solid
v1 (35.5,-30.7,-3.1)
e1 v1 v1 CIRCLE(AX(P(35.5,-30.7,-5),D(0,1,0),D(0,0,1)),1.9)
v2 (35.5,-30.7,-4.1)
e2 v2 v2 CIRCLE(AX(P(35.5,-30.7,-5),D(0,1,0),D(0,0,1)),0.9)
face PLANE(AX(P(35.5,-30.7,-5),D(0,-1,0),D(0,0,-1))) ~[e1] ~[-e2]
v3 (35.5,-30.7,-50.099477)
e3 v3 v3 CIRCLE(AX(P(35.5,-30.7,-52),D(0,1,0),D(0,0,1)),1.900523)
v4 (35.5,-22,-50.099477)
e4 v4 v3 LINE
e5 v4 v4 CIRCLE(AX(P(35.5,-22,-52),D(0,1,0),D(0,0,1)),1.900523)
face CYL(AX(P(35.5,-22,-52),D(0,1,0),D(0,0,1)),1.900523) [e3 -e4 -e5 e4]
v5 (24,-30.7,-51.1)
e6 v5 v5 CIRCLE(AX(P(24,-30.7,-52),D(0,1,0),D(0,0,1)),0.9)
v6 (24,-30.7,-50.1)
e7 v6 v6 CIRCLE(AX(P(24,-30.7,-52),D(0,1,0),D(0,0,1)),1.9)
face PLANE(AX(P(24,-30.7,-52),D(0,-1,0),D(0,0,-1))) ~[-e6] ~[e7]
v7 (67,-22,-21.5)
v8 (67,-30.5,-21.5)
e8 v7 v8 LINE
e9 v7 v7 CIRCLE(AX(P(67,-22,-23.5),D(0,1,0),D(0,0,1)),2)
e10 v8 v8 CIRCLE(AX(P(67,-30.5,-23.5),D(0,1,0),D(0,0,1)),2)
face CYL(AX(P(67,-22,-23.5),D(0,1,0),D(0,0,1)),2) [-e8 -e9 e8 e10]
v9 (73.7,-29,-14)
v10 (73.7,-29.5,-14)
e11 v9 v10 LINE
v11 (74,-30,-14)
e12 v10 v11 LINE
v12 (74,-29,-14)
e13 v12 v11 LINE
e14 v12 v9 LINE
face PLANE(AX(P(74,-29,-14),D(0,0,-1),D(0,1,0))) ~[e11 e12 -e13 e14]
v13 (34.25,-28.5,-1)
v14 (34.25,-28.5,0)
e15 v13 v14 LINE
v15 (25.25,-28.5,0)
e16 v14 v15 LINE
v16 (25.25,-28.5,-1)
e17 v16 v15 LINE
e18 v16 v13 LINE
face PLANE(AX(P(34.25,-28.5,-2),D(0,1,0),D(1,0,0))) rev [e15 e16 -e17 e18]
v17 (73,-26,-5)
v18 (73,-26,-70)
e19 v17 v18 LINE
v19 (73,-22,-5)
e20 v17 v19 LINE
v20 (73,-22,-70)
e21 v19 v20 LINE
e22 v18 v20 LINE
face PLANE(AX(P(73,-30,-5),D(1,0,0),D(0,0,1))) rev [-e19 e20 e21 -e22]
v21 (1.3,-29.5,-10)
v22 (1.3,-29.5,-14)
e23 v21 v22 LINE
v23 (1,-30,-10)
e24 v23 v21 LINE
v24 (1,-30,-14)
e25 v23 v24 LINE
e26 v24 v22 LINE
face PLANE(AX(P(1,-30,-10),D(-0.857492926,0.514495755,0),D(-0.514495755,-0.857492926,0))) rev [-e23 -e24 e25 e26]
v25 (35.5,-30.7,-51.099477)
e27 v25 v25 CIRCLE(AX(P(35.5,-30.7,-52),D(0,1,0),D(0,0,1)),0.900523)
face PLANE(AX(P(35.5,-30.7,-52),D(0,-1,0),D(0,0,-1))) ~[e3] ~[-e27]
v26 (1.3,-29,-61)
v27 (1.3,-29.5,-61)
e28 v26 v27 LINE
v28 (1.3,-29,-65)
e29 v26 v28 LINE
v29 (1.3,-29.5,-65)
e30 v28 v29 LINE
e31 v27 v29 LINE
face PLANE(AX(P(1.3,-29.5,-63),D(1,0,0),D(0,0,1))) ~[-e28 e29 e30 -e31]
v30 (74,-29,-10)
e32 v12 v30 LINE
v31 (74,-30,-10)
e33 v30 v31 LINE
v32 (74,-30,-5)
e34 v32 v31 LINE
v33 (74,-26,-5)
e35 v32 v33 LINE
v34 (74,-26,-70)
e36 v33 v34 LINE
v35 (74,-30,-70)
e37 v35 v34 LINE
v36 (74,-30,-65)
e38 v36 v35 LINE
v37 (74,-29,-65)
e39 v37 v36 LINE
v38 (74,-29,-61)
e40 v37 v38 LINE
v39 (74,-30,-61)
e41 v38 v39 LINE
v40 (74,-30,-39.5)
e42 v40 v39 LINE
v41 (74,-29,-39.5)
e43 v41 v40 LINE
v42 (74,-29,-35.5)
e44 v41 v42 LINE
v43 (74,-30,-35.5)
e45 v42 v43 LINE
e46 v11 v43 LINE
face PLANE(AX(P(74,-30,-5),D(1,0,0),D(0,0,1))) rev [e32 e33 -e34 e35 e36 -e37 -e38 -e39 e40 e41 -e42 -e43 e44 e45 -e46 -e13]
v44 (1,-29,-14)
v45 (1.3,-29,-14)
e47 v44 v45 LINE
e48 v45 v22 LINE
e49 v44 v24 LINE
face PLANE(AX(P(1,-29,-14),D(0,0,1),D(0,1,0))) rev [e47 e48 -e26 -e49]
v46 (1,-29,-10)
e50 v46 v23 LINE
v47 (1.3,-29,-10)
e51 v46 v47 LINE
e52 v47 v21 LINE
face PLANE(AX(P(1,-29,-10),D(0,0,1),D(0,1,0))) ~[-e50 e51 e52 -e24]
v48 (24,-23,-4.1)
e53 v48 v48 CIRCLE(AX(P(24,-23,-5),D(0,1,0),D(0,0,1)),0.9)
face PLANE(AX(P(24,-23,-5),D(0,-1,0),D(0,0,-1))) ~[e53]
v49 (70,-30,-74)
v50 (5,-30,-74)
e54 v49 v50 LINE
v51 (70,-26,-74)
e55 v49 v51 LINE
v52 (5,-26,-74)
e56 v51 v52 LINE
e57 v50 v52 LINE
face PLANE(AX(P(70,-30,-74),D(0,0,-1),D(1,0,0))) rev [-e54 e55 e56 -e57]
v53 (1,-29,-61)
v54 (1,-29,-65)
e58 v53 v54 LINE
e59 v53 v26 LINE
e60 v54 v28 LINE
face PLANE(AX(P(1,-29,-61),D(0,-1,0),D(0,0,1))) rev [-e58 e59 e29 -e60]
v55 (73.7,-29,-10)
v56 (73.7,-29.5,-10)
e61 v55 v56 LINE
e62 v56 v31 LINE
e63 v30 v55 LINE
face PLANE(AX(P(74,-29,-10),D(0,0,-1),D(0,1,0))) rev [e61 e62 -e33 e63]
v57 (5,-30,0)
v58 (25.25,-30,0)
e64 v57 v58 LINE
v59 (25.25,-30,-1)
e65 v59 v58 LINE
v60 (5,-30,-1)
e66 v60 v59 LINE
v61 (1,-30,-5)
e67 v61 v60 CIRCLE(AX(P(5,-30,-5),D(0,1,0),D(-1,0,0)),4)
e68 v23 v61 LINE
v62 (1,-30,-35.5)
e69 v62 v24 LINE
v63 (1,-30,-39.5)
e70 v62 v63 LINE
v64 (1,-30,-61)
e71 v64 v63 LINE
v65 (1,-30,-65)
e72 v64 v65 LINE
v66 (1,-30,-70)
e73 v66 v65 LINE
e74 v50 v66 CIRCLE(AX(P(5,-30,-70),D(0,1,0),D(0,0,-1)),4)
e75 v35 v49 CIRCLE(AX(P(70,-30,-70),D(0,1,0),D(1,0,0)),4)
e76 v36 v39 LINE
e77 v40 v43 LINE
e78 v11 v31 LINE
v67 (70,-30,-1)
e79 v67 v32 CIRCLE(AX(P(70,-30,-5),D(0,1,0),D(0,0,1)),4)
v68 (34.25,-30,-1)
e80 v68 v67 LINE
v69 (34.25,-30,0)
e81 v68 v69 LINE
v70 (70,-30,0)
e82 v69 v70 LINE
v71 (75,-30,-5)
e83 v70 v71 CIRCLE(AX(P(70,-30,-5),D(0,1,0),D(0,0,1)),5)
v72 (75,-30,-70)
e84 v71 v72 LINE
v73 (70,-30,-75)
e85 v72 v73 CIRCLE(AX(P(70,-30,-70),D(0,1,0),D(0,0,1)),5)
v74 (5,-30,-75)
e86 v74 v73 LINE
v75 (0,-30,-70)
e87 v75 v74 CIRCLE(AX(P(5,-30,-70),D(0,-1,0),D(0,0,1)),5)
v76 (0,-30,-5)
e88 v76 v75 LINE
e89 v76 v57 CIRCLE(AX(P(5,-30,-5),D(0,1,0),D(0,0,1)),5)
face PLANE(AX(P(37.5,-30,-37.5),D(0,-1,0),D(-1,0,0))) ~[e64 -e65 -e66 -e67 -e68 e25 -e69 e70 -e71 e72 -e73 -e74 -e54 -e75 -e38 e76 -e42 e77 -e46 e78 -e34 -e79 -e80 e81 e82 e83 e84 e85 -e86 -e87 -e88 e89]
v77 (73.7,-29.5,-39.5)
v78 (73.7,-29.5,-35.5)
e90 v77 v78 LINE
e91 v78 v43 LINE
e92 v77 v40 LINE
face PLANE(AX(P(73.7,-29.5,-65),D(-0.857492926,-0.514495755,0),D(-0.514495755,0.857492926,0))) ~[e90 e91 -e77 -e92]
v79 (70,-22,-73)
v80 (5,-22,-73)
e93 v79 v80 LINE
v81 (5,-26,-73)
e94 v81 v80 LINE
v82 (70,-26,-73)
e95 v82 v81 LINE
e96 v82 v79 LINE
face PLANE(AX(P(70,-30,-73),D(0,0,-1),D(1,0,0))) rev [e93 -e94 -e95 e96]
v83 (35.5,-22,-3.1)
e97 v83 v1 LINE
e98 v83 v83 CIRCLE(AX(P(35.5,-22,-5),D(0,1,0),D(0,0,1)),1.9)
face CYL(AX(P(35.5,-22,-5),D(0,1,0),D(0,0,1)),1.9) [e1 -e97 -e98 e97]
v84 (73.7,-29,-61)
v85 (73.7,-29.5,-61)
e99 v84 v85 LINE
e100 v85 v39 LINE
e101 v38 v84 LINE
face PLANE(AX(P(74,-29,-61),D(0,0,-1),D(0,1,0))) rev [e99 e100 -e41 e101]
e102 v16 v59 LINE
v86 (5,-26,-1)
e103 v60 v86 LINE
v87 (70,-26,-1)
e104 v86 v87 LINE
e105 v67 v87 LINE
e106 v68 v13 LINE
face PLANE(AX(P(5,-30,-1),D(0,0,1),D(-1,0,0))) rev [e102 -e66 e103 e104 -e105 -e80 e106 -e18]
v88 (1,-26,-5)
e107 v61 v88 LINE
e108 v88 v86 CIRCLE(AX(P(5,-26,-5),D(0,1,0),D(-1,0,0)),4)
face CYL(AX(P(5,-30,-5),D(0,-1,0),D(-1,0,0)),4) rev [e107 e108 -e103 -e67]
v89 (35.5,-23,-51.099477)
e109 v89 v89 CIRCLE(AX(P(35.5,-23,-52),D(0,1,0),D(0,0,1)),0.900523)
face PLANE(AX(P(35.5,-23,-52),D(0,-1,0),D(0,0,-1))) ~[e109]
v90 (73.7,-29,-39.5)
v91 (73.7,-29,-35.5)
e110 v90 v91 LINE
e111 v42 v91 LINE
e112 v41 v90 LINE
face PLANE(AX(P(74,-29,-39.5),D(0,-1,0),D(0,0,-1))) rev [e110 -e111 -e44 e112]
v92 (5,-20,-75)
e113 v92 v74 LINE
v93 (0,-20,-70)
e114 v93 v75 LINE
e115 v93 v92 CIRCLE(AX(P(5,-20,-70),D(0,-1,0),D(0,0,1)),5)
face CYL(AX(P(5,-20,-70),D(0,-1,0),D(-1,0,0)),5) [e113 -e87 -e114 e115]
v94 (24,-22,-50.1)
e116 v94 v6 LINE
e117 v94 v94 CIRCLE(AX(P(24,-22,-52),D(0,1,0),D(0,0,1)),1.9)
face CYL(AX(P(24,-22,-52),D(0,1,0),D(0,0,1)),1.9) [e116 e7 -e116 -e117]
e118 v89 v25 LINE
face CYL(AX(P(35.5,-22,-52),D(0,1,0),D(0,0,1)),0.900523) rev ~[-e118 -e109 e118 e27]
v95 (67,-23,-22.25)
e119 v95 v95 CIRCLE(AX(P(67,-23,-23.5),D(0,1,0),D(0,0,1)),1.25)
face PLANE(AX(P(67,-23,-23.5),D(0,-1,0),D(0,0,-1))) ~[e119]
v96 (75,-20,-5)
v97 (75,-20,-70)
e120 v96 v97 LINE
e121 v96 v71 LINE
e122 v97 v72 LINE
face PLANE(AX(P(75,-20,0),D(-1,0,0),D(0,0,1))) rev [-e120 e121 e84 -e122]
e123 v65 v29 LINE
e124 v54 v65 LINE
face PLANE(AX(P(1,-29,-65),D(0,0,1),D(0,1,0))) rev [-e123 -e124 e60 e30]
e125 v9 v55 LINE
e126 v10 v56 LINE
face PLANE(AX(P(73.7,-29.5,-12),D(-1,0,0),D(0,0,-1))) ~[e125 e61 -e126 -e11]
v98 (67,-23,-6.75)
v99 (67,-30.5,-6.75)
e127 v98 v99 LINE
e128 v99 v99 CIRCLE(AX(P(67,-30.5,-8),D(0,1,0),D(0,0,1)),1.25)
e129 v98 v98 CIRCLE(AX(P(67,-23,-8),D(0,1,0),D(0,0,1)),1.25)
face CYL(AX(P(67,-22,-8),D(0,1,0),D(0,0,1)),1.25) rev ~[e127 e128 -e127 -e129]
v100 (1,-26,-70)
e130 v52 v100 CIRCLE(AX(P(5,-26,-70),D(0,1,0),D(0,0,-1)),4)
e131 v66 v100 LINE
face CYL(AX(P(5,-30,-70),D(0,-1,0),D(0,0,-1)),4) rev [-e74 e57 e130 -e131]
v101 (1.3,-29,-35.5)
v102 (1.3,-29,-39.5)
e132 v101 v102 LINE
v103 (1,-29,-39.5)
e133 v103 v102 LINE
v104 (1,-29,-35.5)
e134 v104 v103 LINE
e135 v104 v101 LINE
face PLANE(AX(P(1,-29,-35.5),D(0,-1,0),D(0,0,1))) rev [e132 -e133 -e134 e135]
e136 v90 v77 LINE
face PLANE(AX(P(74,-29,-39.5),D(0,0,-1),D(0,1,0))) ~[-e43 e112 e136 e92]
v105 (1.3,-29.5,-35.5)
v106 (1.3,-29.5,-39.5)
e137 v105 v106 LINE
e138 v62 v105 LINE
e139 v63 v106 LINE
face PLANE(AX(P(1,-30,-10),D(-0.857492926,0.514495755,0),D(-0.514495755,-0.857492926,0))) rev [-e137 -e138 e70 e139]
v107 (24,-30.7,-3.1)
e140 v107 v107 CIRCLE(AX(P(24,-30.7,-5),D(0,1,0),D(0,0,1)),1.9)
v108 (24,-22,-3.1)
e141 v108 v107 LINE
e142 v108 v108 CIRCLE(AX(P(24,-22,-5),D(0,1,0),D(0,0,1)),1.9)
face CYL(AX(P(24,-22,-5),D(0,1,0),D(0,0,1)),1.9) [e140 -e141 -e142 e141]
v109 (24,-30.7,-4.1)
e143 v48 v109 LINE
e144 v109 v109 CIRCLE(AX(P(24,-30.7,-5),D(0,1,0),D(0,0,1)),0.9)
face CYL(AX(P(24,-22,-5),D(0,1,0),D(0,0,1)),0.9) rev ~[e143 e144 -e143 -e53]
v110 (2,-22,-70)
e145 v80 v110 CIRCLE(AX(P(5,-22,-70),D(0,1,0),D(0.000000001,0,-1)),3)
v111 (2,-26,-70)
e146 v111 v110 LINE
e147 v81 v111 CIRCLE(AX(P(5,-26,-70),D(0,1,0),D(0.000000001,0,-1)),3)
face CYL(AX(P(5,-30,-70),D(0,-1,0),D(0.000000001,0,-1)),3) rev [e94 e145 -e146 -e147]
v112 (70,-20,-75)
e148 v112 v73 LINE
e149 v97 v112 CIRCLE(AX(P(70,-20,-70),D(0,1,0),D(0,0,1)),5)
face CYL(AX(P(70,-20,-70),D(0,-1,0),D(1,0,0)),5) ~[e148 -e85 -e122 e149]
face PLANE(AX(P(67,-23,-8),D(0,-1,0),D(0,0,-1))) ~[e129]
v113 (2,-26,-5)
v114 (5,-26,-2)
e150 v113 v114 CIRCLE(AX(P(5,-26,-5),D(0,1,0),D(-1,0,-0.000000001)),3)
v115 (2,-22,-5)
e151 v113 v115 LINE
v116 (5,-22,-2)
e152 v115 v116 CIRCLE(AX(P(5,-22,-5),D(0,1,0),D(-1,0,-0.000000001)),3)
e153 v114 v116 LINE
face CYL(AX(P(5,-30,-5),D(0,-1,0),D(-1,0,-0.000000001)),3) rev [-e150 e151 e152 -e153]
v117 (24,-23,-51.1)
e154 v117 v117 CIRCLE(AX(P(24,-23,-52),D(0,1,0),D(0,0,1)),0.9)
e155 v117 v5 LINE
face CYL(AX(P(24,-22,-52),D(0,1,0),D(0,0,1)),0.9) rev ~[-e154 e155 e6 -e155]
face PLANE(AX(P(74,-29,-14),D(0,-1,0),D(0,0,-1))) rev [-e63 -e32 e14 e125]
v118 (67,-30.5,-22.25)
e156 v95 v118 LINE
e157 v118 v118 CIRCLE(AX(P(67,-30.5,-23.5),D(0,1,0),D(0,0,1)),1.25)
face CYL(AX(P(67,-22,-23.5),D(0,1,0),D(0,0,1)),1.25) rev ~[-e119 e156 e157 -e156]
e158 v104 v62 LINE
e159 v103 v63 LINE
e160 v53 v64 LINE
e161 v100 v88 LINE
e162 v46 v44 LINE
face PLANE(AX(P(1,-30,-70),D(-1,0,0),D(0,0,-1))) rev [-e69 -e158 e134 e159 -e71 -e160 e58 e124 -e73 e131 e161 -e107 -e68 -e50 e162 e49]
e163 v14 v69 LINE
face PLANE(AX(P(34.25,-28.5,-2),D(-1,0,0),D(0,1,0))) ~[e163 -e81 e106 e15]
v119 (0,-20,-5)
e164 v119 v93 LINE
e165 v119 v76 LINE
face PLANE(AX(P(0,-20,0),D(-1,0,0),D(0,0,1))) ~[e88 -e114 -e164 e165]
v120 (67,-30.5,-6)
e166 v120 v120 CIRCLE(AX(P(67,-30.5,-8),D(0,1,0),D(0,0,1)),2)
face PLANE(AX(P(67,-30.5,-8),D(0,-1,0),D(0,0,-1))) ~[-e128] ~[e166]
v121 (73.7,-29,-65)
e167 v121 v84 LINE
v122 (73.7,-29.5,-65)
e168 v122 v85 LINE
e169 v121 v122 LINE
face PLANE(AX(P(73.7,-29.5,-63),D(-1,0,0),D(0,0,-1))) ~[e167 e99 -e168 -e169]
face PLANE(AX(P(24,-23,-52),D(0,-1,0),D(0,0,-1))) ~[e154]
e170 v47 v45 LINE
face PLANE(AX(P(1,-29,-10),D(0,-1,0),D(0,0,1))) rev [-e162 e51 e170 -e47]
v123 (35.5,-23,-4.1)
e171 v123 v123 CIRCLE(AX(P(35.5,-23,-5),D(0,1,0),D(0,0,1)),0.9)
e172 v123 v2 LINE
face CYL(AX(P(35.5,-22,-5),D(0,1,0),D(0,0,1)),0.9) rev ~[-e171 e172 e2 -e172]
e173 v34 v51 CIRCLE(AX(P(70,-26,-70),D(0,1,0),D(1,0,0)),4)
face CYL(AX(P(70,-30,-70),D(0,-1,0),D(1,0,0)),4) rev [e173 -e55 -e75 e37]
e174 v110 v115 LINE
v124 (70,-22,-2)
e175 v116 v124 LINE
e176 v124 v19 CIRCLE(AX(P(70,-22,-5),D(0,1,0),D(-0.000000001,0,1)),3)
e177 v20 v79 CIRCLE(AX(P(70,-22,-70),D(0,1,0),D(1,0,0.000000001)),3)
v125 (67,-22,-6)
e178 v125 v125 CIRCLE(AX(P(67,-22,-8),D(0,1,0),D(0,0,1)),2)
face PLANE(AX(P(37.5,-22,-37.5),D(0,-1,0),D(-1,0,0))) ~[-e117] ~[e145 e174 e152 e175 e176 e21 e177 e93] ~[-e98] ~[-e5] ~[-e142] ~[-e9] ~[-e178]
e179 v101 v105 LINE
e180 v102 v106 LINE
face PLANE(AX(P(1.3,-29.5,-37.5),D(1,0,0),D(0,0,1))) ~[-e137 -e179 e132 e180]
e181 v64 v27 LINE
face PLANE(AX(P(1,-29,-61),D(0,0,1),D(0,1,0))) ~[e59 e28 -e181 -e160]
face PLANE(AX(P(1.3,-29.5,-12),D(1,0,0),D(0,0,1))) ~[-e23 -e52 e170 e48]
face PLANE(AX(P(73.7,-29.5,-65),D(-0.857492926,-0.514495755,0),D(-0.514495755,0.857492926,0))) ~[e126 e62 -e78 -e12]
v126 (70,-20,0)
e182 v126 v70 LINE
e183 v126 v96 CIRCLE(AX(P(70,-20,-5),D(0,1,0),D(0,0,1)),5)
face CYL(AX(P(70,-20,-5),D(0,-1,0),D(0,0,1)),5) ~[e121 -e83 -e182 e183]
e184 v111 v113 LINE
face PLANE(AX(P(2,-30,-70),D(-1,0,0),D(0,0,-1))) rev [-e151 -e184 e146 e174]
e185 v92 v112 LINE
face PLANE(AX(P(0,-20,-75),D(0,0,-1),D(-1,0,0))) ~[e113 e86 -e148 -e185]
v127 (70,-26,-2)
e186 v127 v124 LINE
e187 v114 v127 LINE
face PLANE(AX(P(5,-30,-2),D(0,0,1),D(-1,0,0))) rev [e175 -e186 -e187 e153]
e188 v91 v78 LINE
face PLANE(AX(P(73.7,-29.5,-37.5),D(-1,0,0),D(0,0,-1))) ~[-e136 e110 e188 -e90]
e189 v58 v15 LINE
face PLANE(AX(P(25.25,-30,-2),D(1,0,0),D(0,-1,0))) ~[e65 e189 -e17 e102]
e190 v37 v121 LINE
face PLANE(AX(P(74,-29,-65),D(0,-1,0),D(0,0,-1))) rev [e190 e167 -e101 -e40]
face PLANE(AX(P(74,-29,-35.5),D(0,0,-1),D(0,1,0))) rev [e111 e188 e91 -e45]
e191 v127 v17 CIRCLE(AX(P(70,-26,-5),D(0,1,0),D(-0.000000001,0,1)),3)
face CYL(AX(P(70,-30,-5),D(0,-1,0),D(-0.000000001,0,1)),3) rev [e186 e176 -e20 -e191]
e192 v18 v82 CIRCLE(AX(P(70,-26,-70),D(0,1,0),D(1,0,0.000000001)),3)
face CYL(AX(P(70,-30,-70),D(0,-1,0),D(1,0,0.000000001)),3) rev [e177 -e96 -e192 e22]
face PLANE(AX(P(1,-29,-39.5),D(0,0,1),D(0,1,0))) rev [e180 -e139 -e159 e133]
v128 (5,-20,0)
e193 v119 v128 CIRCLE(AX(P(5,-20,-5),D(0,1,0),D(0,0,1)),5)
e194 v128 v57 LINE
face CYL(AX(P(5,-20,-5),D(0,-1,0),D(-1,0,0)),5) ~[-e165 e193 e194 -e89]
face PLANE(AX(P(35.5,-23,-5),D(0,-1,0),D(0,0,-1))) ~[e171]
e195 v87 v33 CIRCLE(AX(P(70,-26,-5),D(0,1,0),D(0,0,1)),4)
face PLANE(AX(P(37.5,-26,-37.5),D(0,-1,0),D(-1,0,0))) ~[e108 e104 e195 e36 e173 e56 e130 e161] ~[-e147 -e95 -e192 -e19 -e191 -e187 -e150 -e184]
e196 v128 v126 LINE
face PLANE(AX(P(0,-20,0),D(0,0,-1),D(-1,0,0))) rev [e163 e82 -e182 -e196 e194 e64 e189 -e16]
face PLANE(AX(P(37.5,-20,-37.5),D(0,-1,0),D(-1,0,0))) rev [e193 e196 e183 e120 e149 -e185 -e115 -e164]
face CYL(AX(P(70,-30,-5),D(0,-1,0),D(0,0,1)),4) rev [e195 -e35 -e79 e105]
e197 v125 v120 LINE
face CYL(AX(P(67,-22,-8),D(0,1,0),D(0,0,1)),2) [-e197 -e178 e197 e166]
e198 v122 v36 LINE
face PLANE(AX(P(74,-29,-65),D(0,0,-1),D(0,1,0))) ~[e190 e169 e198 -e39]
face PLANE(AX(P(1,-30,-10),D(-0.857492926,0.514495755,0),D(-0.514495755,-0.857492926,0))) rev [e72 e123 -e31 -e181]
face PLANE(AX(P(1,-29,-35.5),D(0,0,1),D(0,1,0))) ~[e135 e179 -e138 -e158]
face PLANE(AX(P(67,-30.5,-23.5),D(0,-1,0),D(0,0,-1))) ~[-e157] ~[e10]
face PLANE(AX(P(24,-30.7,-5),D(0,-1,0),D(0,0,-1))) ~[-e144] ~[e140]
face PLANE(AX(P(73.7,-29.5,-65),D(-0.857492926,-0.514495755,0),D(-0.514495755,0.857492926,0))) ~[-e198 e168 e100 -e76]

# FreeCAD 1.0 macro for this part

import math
import FreeCAD as App
import Part
import Sketcher
Q = App.Units.Quantity


def edges_at(feature, points):
    """Names of the edges that pass closest to the given points."""
    edges = feature.Shape.Edges
    near = lambda p: min(range(len(edges)), key=lambda i: edges[i].distToShape(Part.Vertex(*p))[0])
    return sorted({f"Edge{near(p) + 1}" for p in points})


def add_polygon(sketch, points):
    """Adds a closed chain of lines whose ends are joined by coincident constraints."""
    first, n = sketch.GeometryCount, len(points)
    for a, b in zip(points, points[1:] + points[:1]):
        sketch.addGeometry(Part.LineSegment(App.Vector(*a, 0), App.Vector(*b, 0)), False)
    for i in range(n):
        sketch.addConstraint(Sketcher.Constraint("Coincident", first + i, 2, first + (i + 1) % n, 1))

doc = App.newDocument("Part")
body = doc.addObject("PartDesign::Body", "Body")

# Sketch on XZ plane
sketch1 = body.newObject("Sketcher::SketchObject", "Sketch")
sketch1.AttachmentSupport = (doc.getObject("XZ_Plane"), [""])
sketch1.MapMode = "FlatFace"
add_polygon(sketch1, [(0, -75), (0, 0), (75, 0), (75, -75)])  # lines 0-3
sketch1.addConstraint(Sketcher.Constraint("Vertical", 0))
sketch1.addConstraint(Sketcher.Constraint("Horizontal", 1))
sketch1.addConstraint(Sketcher.Constraint("Vertical", 2))
sketch1.addConstraint(Sketcher.Constraint("Horizontal", 3))
sketch1.addConstraint(Sketcher.Constraint("Coincident", 0, 2, -1, 1))
sketch1.addConstraint(Sketcher.Constraint("Equal", 3, 0))
sketch1.addConstraint(Sketcher.Constraint("DistanceX", 1, 1, 1, 2, Q("75 mm")))
pad1 = body.newObject("PartDesign::Pad", "Pad")
pad1.Profile = sketch1
pad1.Length = 10
pad1.Reversed = True
doc.recompute()

fillet = body.newObject("PartDesign::Fillet", "Fillet")
fillet.Base = (pad1, edges_at(pad1, [
    (0, 5, 0),
    (0, 5, -75),
    (75, 5, -75),
    (75, 5, 0),
]))
fillet.Radius = 5

# Sketch on XZ plane
sketch2 = body.newObject("Sketcher::SketchObject", "Sketch001")
sketch2.AttachmentSupport = (doc.getObject("XZ_Plane"), [""])
sketch2.MapMode = "FlatFace"
sketch2.AttachmentOffset = App.Placement(App.Vector(0, 0, -10), App.Rotation())
sketch2.addGeometry(Part.LineSegment(App.Vector(2, -70, 0), App.Vector(2, -5, 0)), False)
sketch2.addGeometry(Part.ArcOfCircle(Part.Circle(App.Vector(5, -5, 0), App.Vector(0, 0, 1), 3), math.radians(90), math.radians(180)), False)
sketch2.addGeometry(Part.LineSegment(App.Vector(5, -2, 0), App.Vector(70, -2, 0)), False)
sketch2.addGeometry(Part.ArcOfCircle(Part.Circle(App.Vector(70, -5, 0), App.Vector(0, 0, 1), 3), math.radians(0), math.radians(90)), False)
sketch2.addGeometry(Part.LineSegment(App.Vector(73, -5, 0), App.Vector(73, -70, 0)), False)
sketch2.addGeometry(Part.ArcOfCircle(Part.Circle(App.Vector(70, -70, 0), App.Vector(0, 0, 1), 3), math.radians(-90), math.radians(0)), False)
sketch2.addGeometry(Part.LineSegment(App.Vector(70, -73, 0), App.Vector(5, -73, 0)), False)
sketch2.addGeometry(Part.ArcOfCircle(Part.Circle(App.Vector(5, -70, 0), App.Vector(0, 0, 1), 3), math.radians(180), math.radians(270)), False)
sketch2.addConstraint(Sketcher.Constraint("Tangent", 0, 2, 1, 2))
sketch2.addConstraint(Sketcher.Constraint("Tangent", 1, 1, 2, 1))
sketch2.addConstraint(Sketcher.Constraint("Tangent", 2, 2, 3, 2))
sketch2.addConstraint(Sketcher.Constraint("Tangent", 3, 1, 4, 1))
sketch2.addConstraint(Sketcher.Constraint("Tangent", 4, 2, 5, 2))
sketch2.addConstraint(Sketcher.Constraint("Tangent", 5, 1, 6, 1))
sketch2.addConstraint(Sketcher.Constraint("Tangent", 6, 2, 7, 2))
sketch2.addConstraint(Sketcher.Constraint("Tangent", 7, 1, 0, 1))
sketch2.addConstraint(Sketcher.Constraint("Vertical", 0))
sketch2.addConstraint(Sketcher.Constraint("Horizontal", 2))
sketch2.addConstraint(Sketcher.Constraint("Vertical", 4))
sketch2.addConstraint(Sketcher.Constraint("Horizontal", 6))
sketch2.addConstraint(Sketcher.Constraint("Equal", 1, 3))
sketch2.addConstraint(Sketcher.Constraint("Equal", 3, 5))
sketch2.addConstraint(Sketcher.Constraint("Equal", 5, 7))
sketch2.addConstraint(Sketcher.Constraint("Equal", 6, 0))
sketch2.addConstraint(Sketcher.Constraint("Radius", 1, Q("3 mm")))
sketch2.addConstraint(Sketcher.Constraint("DistanceX", 2, 1, 2, 2, Q("65 mm")))
sketch2.addConstraint(Sketcher.Constraint("DistanceX", -1, 1, 1, 3, Q("5 mm")))
sketch2.addConstraint(Sketcher.Constraint("DistanceY", 1, 3, -1, 1, Q("5 mm")))
pocket1 = body.newObject("PartDesign::Pocket", "Pocket")
pocket1.Profile = sketch2
pocket1.Length = 8
pocket1.Reversed = True

# Sketch on XZ plane
sketch3 = body.newObject("Sketcher::SketchObject", "Sketch002")
sketch3.AttachmentSupport = (doc.getObject("XZ_Plane"), [""])
sketch3.MapMode = "FlatFace"
sketch3.AttachmentOffset = App.Placement(App.Vector(0, 0, -10), App.Rotation())
sketch3.addGeometry(Part.LineSegment(App.Vector(1, -70, 0), App.Vector(1, -5, 0)), False)
sketch3.addGeometry(Part.ArcOfCircle(Part.Circle(App.Vector(5, -5, 0), App.Vector(0, 0, 1), 4), math.radians(90), math.radians(180)), False)
sketch3.addGeometry(Part.LineSegment(App.Vector(5, -1, 0), App.Vector(70, -1, 0)), False)
sketch3.addGeometry(Part.ArcOfCircle(Part.Circle(App.Vector(70, -5, 0), App.Vector(0, 0, 1), 4), math.radians(0), math.radians(90)), False)
sketch3.addGeometry(Part.LineSegment(App.Vector(74, -5, 0), App.Vector(74, -70, 0)), False)
sketch3.addGeometry(Part.ArcOfCircle(Part.Circle(App.Vector(70, -70, 0), App.Vector(0, 0, 1), 4), math.radians(-90), math.radians(0)), False)
sketch3.addGeometry(Part.LineSegment(App.Vector(70, -74, 0), App.Vector(5, -74, 0)), False)
sketch3.addGeometry(Part.ArcOfCircle(Part.Circle(App.Vector(5, -70, 0), App.Vector(0, 0, 1), 4), math.radians(180), math.radians(270)), False)
sketch3.addGeometry(Part.LineSegment(App.Vector(2, -5, 0), App.Vector(2, -70, 0)), False)
sketch3.addGeometry(Part.ArcOfCircle(Part.Circle(App.Vector(5, -70, 0), App.Vector(0, 0, 1), 3), math.radians(180), math.radians(270)), False)
sketch3.addGeometry(Part.LineSegment(App.Vector(5, -73, 0), App.Vector(70, -73, 0)), False)
sketch3.addGeometry(Part.ArcOfCircle(Part.Circle(App.Vector(70, -70, 0), App.Vector(0, 0, 1), 3), math.radians(-90), math.radians(0)), False)
sketch3.addGeometry(Part.LineSegment(App.Vector(73, -70, 0), App.Vector(73, -5, 0)), False)
sketch3.addGeometry(Part.ArcOfCircle(Part.Circle(App.Vector(70, -5, 0), App.Vector(0, 0, 1), 3), math.radians(0), math.radians(90)), False)
sketch3.addGeometry(Part.LineSegment(App.Vector(70, -2, 0), App.Vector(5, -2, 0)), False)
sketch3.addGeometry(Part.ArcOfCircle(Part.Circle(App.Vector(5, -5, 0), App.Vector(0, 0, 1), 3), math.radians(90), math.radians(180)), False)
sketch3.addConstraint(Sketcher.Constraint("Tangent", 0, 2, 1, 2))
sketch3.addConstraint(Sketcher.Constraint("Tangent", 1, 1, 2, 1))
sketch3.addConstraint(Sketcher.Constraint("Tangent", 2, 2, 3, 2))
sketch3.addConstraint(Sketcher.Constraint("Tangent", 3, 1, 4, 1))
sketch3.addConstraint(Sketcher.Constraint("Tangent", 4, 2, 5, 2))
sketch3.addConstraint(Sketcher.Constraint("Tangent", 5, 1, 6, 1))
sketch3.addConstraint(Sketcher.Constraint("Tangent", 6, 2, 7, 2))
sketch3.addConstraint(Sketcher.Constraint("Tangent", 7, 1, 0, 1))
sketch3.addConstraint(Sketcher.Constraint("Tangent", 8, 2, 9, 1))
sketch3.addConstraint(Sketcher.Constraint("Tangent", 9, 2, 10, 1))
sketch3.addConstraint(Sketcher.Constraint("Tangent", 10, 2, 11, 1))
sketch3.addConstraint(Sketcher.Constraint("Tangent", 11, 2, 12, 1))
sketch3.addConstraint(Sketcher.Constraint("Tangent", 12, 2, 13, 1))
sketch3.addConstraint(Sketcher.Constraint("Tangent", 13, 2, 14, 1))
sketch3.addConstraint(Sketcher.Constraint("Tangent", 14, 2, 15, 1))
sketch3.addConstraint(Sketcher.Constraint("Tangent", 15, 2, 8, 1))
sketch3.addConstraint(Sketcher.Constraint("Vertical", 0))
sketch3.addConstraint(Sketcher.Constraint("Horizontal", 2))
sketch3.addConstraint(Sketcher.Constraint("Vertical", 4))
sketch3.addConstraint(Sketcher.Constraint("Horizontal", 6))
sketch3.addConstraint(Sketcher.Constraint("Vertical", 8))
sketch3.addConstraint(Sketcher.Constraint("Horizontal", 10))
sketch3.addConstraint(Sketcher.Constraint("Vertical", 12))
sketch3.addConstraint(Sketcher.Constraint("Horizontal", 14))
sketch3.addConstraint(Sketcher.Constraint("Coincident", 9, 3, 7, 3))
sketch3.addConstraint(Sketcher.Constraint("Coincident", 11, 3, 5, 3))
sketch3.addConstraint(Sketcher.Constraint("Coincident", 13, 3, 3, 3))
sketch3.addConstraint(Sketcher.Constraint("Equal", 1, 3))
sketch3.addConstraint(Sketcher.Constraint("Equal", 3, 5))
sketch3.addConstraint(Sketcher.Constraint("Equal", 5, 7))
sketch3.addConstraint(Sketcher.Constraint("Equal", 13, 15))
sketch3.addConstraint(Sketcher.Constraint("Equal", 14, 0))
sketch3.addConstraint(Sketcher.Constraint("Radius", 1, Q("4 mm")))
sketch3.addConstraint(Sketcher.Constraint("Radius", 9, Q("3 mm")))
sketch3.addConstraint(Sketcher.Constraint("DistanceX", 2, 1, 2, 2, Q("65 mm")))
sketch3.addConstraint(Sketcher.Constraint("DistanceX", -1, 1, 1, 3, Q("5 mm")))
sketch3.addConstraint(Sketcher.Constraint("DistanceY", 1, 3, -1, 1, Q("5 mm")))
pocket2 = body.newObject("PartDesign::Pocket", "Pocket001")
pocket2.Profile = sketch3
pocket2.Length = 4
pocket2.Reversed = True

# Sketch on XZ plane
sketch4 = body.newObject("Sketcher::SketchObject", "Sketch003")
sketch4.AttachmentSupport = (doc.getObject("XZ_Plane"), [""])
sketch4.MapMode = "FlatFace"
sketch4.AttachmentOffset = App.Placement(App.Vector(0, 0, -2), App.Rotation())
sketch4.addGeometry(Part.Circle(App.Vector(24, -52, 0), App.Vector(0, 0, 1), 1.9), False)
sketch4.addGeometry(Part.Circle(App.Vector(24, -52, 0), App.Vector(0, 0, 1), 0.9), False)
sketch4.addGeometry(Part.Circle(App.Vector(35.5, -52, 0), App.Vector(0, 0, 1), 1.9), False)
sketch4.addGeometry(Part.Circle(App.Vector(35.5, -52, 0), App.Vector(0, 0, 1), 0.9), False)
sketch4.addGeometry(Part.Circle(App.Vector(35.5, -5, 0), App.Vector(0, 0, 1), 1.9), False)
sketch4.addGeometry(Part.Circle(App.Vector(35.5, -5, 0), App.Vector(0, 0, 1), 0.9), False)
sketch4.addGeometry(Part.Circle(App.Vector(24, -5, 0), App.Vector(0, 0, 1), 1.9), False)
sketch4.addGeometry(Part.Circle(App.Vector(24, -5, 0), App.Vector(0, 0, 1), 0.9), False)
sketch4.addConstraint(Sketcher.Constraint("Coincident", 1, 3, 0, 3))
sketch4.addConstraint(Sketcher.Constraint("Coincident", 3, 3, 2, 3))
sketch4.addConstraint(Sketcher.Constraint("Coincident", 5, 3, 4, 3))
sketch4.addConstraint(Sketcher.Constraint("Coincident", 7, 3, 6, 3))
sketch4.addConstraint(Sketcher.Constraint("Equal", 0, 4))
sketch4.addConstraint(Sketcher.Constraint("Equal", 1, 5))
sketch4.addConstraint(Sketcher.Constraint("Equal", 4, 6))
sketch4.addConstraint(Sketcher.Constraint("Equal", 5, 7))
sketch4.addConstraint(Sketcher.Constraint("Horizontal", 1, 3, 2, 3))
sketch4.addConstraint(Sketcher.Constraint("Horizontal", 5, 3, 6, 3))
sketch4.addConstraint(Sketcher.Constraint("Vertical", 3, 3, 4, 3))
sketch4.addConstraint(Sketcher.Constraint("Vertical", 1, 3, 6, 3))
sketch4.addConstraint(Sketcher.Constraint("Diameter", 0, Q("3.8 mm")))
sketch4.addConstraint(Sketcher.Constraint("Diameter", 1, Q("1.8 mm")))
sketch4.addConstraint(Sketcher.Constraint("DistanceX", -1, 1, 0, 3, Q("24 mm")))
sketch4.addConstraint(Sketcher.Constraint("DistanceY", 0, 3, -1, 1, Q("52 mm")))
sketch4.addConstraint(Sketcher.Constraint("DistanceY", 4, 3, -1, 1, Q("5 mm")))
sketch4.addConstraint(Sketcher.Constraint("DistanceX", -1, 1, 2, 3, Q("35.5 mm")))
sketch4.addConstraint(Sketcher.Constraint("Diameter", 2, Q("3.801046 mm")))
sketch4.addConstraint(Sketcher.Constraint("Diameter", 3, Q("1.801046 mm")))
pad2 = body.newObject("PartDesign::Pad", "Pad001")
pad2.Profile = sketch4
pad2.Length = 8.7
pad2.Reversed = True

# Sketch on XZ plane
sketch5 = body.newObject("Sketcher::SketchObject", "Sketch004")
sketch5.AttachmentSupport = (doc.getObject("XZ_Plane"), [""])
sketch5.MapMode = "FlatFace"
sketch5.AttachmentOffset = App.Placement(App.Vector(0, 0, -2), App.Rotation())
sketch5.addGeometry(Part.Circle(App.Vector(35.5, -52, 0), App.Vector(0, 0, 1), 0.9), False)
sketch5.addGeometry(Part.Circle(App.Vector(35.5, -5, 0), App.Vector(0, 0, 1), 0.9), False)
sketch5.addGeometry(Part.Circle(App.Vector(24, -5, 0), App.Vector(0, 0, 1), 0.9), False)
sketch5.addGeometry(Part.Circle(App.Vector(24, -52, 0), App.Vector(0, 0, 1), 0.9), False)
sketch5.addConstraint(Sketcher.Constraint("Equal", 1, 2))
sketch5.addConstraint(Sketcher.Constraint("Equal", 2, 3))
sketch5.addConstraint(Sketcher.Constraint("Horizontal", 1, 3, 2, 3))
sketch5.addConstraint(Sketcher.Constraint("Horizontal", 0, 3, 3, 3))
sketch5.addConstraint(Sketcher.Constraint("Vertical", 0, 3, 1, 3))
sketch5.addConstraint(Sketcher.Constraint("Vertical", 2, 3, 3, 3))
sketch5.addConstraint(Sketcher.Constraint("Diameter", 1, Q("1.8 mm")))
sketch5.addConstraint(Sketcher.Constraint("DistanceY", 0, 3, -1, 1, Q("52 mm")))
sketch5.addConstraint(Sketcher.Constraint("DistanceY", 1, 3, -1, 1, Q("5 mm")))
sketch5.addConstraint(Sketcher.Constraint("DistanceX", -1, 1, 2, 3, Q("24 mm")))
sketch5.addConstraint(Sketcher.Constraint("DistanceX", -1, 1, 0, 3, Q("35.5 mm")))
sketch5.addConstraint(Sketcher.Constraint("Diameter", 0, Q("1.801046 mm")))
pad3 = body.newObject("PartDesign::Pad", "Pad002")
pad3.Profile = sketch5
pad3.Length = 1
pad3.Reversed = True

# Sketch on XZ plane
sketch6 = body.newObject("Sketcher::SketchObject", "Sketch005")
sketch6.AttachmentSupport = (doc.getObject("XZ_Plane"), [""])
sketch6.MapMode = "FlatFace"
sketch6.AttachmentOffset = App.Placement(App.Vector(0, 0, -2), App.Rotation())
sketch6.addGeometry(Part.Circle(App.Vector(67, -23.5, 0), App.Vector(0, 0, 1), 1.2), False)
sketch6.addGeometry(Part.Circle(App.Vector(67, -8, 0), App.Vector(0, 0, 1), 1.2), False)
sketch6.addConstraint(Sketcher.Constraint("Equal", 0, 1))
sketch6.addConstraint(Sketcher.Constraint("Vertical", 0, 3, 1, 3))
sketch6.addConstraint(Sketcher.Constraint("Diameter", 0, Q("2.5 mm")))
sketch6.addConstraint(Sketcher.Constraint("DistanceX", -1, 1, 0, 3, Q("67 mm")))
sketch6.addConstraint(Sketcher.Constraint("DistanceY", 1, 3, -1, 1, Q("8 mm")))
sketch6.addConstraint(Sketcher.Constraint("DistanceY", 0, 3, -1, 1, Q("23.5 mm")))
pad4 = body.newObject("PartDesign::Pad", "Pad003")
pad4.Profile = sketch6
pad4.Length = 1
pad4.Reversed = True

# Sketch on XZ plane
sketch7 = body.newObject("Sketcher::SketchObject", "Sketch006")
sketch7.AttachmentSupport = (doc.getObject("XZ_Plane"), [""])
sketch7.MapMode = "FlatFace"
sketch7.AttachmentOffset = App.Placement(App.Vector(0, 0, -2), App.Rotation())
sketch7.addGeometry(Part.Circle(App.Vector(67, -23.5, 0), App.Vector(0, 0, 1), 2), False)
sketch7.addGeometry(Part.Circle(App.Vector(67, -23.5, 0), App.Vector(0, 0, 1), 1.2), False)
sketch7.addGeometry(Part.Circle(App.Vector(67, -8, 0), App.Vector(0, 0, 1), 2), False)
sketch7.addGeometry(Part.Circle(App.Vector(67, -8, 0), App.Vector(0, 0, 1), 1.2), False)
sketch7.addConstraint(Sketcher.Constraint("Coincident", 1, 3, 0, 3))
sketch7.addConstraint(Sketcher.Constraint("Coincident", 3, 3, 2, 3))
sketch7.addConstraint(Sketcher.Constraint("Equal", 0, 2))
sketch7.addConstraint(Sketcher.Constraint("Equal", 1, 3))
sketch7.addConstraint(Sketcher.Constraint("Vertical", 1, 3, 2, 3))
sketch7.addConstraint(Sketcher.Constraint("Diameter", 0, Q("4 mm")))
sketch7.addConstraint(Sketcher.Constraint("Diameter", 1, Q("2.5 mm")))
sketch7.addConstraint(Sketcher.Constraint("DistanceX", -1, 1, 0, 3, Q("67 mm")))
sketch7.addConstraint(Sketcher.Constraint("DistanceY", 2, 3, -1, 1, Q("8 mm")))
sketch7.addConstraint(Sketcher.Constraint("DistanceY", 0, 3, -1, 1, Q("23.5 mm")))
pad5 = body.newObject("PartDesign::Pad", "Pad004")
pad5.Profile = sketch7
pad5.Length = 8.5
pad5.Reversed = True

# Sketch on XY plane
sketch8 = body.newObject("Sketcher::SketchObject", "Sketch007")
sketch8.AttachmentSupport = (doc.getObject("XY_Plane"), [""])
sketch8.MapMode = "FlatFace"
sketch8.AttachmentOffset = App.Placement(App.Vector(0, 0, -2), App.Rotation())
add_polygon(sketch8, [(25.2, 10), (34.2, 10), (34.2, 8.5), (25.2, 8.5)])  # lines 0-3
sketch8.addConstraint(Sketcher.Constraint("Horizontal", 0))
sketch8.addConstraint(Sketcher.Constraint("Vertical", 1))
sketch8.addConstraint(Sketcher.Constraint("Horizontal", 2))
sketch8.addConstraint(Sketcher.Constraint("Vertical", 3))
sketch8.addConstraint(Sketcher.Constraint("DistanceX", 0, 1, 0, 2, Q("9 mm")))
sketch8.addConstraint(Sketcher.Constraint("DistanceY", 1, 2, 1, 1, Q("1.5 mm")))
sketch8.addConstraint(Sketcher.Constraint("DistanceY", -1, 1, 0, 2, Q("10 mm")))
sketch8.addConstraint(Sketcher.Constraint("DistanceX", -1, 1, 0, 2, Q("34.25 mm")))
pocket3 = body.newObject("PartDesign::Pocket", "Pocket002")
pocket3.Profile = sketch8
pocket3.Length = 10
pocket3.Reversed = True

# Sketch on YZ plane
sketch9 = body.newObject("Sketcher::SketchObject", "Sketch008")
sketch9.AttachmentSupport = (doc.getObject("YZ_Plane"), [""])
sketch9.MapMode = "FlatFace"
sketch9.AttachmentOffset = App.Placement(App.Vector(0, 0, 74), App.Rotation())
add_polygon(sketch9, [(10, -39.5), (9, -39.5), (9, -35.5), (10, -35.5)])  # lines 0-3
add_polygon(sketch9, [(10, -65), (9, -65), (9, -61), (10, -61)])  # lines 4-7
add_polygon(sketch9, [(10, -14), (9, -14), (9, -10), (10, -10)])  # lines 8-11
sketch9.addConstraint(Sketcher.Constraint("Horizontal", 0))
sketch9.addConstraint(Sketcher.Constraint("Vertical", 1))
sketch9.addConstraint(Sketcher.Constraint("Horizontal", 2))
sketch9.addConstraint(Sketcher.Constraint("Vertical", 3))
sketch9.addConstraint(Sketcher.Constraint("Horizontal", 4))
sketch9.addConstraint(Sketcher.Constraint("Vertical", 5))
sketch9.addConstraint(Sketcher.Constraint("Horizontal", 6))
sketch9.addConstraint(Sketcher.Constraint("Vertical", 7))
sketch9.addConstraint(Sketcher.Constraint("Horizontal", 8))
sketch9.addConstraint(Sketcher.Constraint("Vertical", 9))
sketch9.addConstraint(Sketcher.Constraint("Horizontal", 10))
sketch9.addConstraint(Sketcher.Constraint("Vertical", 11))
sketch9.addConstraint(Sketcher.Constraint("Vertical", 1, 2, 4, 2))
sketch9.addConstraint(Sketcher.Constraint("Vertical", 3, 2, 6, 2))
sketch9.addConstraint(Sketcher.Constraint("Vertical", 5, 2, 8, 2))
sketch9.addConstraint(Sketcher.Constraint("Vertical", 7, 2, 10, 2))
sketch9.addConstraint(Sketcher.Constraint("Equal", 3, 5))
sketch9.addConstraint(Sketcher.Constraint("Equal", 7, 9))
sketch9.addConstraint(Sketcher.Constraint("DistanceX", 0, 2, 0, 1, Q("1 mm")))
sketch9.addConstraint(Sketcher.Constraint("DistanceY", 1, 1, 1, 2, Q("4 mm")))
sketch9.addConstraint(Sketcher.Constraint("DistanceX", -1, 1, 0, 2, Q("9 mm")))
sketch9.addConstraint(Sketcher.Constraint("DistanceY", 4, 2, -1, 1, Q("65 mm")))
sketch9.addConstraint(Sketcher.Constraint("DistanceY", 8, 2, -1, 1, Q("14 mm")))
sketch9.addConstraint(Sketcher.Constraint("DistanceY", 0, 2, -1, 1, Q("39.5 mm")))
pad6 = body.newObject("PartDesign::Pad", "Pad005")
pad6.Profile = sketch9
pad6.Length = 0.3
pad6.Reversed = True

# Sketch on YZ plane
sketch10 = body.newObject("Sketcher::SketchObject", "Sketch009")
sketch10.AttachmentSupport = (doc.getObject("YZ_Plane"), [""])
sketch10.MapMode = "FlatFace"
sketch10.AttachmentOffset = App.Placement(App.Vector(0, 0, 1), App.Rotation())
add_polygon(sketch10, [(10, -10), (9, -10), (9, -14), (10, -14)])  # lines 0-3
add_polygon(sketch10, [(10, -61), (9, -61), (9, -65), (10, -65)])  # lines 4-7
add_polygon(sketch10, [(10, -35.5), (9, -35.5), (9, -39.5), (10, -39.5)])  # lines 8-11
sketch10.addConstraint(Sketcher.Constraint("Horizontal", 0))
sketch10.addConstraint(Sketcher.Constraint("Vertical", 1))
sketch10.addConstraint(Sketcher.Constraint("Horizontal", 2))
sketch10.addConstraint(Sketcher.Constraint("Vertical", 3))
sketch10.addConstraint(Sketcher.Constraint("Horizontal", 4))
sketch10.addConstraint(Sketcher.Constraint("Vertical", 5))
sketch10.addConstraint(Sketcher.Constraint("Horizontal", 6))
sketch10.addConstraint(Sketcher.Constraint("Vertical", 7))
sketch10.addConstraint(Sketcher.Constraint("Horizontal", 8))
sketch10.addConstraint(Sketcher.Constraint("Vertical", 9))
sketch10.addConstraint(Sketcher.Constraint("Horizontal", 10))
sketch10.addConstraint(Sketcher.Constraint("Vertical", 11))
sketch10.addConstraint(Sketcher.Constraint("Vertical", 1, 2, 4, 2))
sketch10.addConstraint(Sketcher.Constraint("Vertical", 3, 2, 6, 2))
sketch10.addConstraint(Sketcher.Constraint("Vertical", 5, 2, 8, 2))
sketch10.addConstraint(Sketcher.Constraint("Vertical", 7, 2, 10, 2))
sketch10.addConstraint(Sketcher.Constraint("Equal", 3, 5))
sketch10.addConstraint(Sketcher.Constraint("Equal", 7, 9))
sketch10.addConstraint(Sketcher.Constraint("DistanceX", 0, 2, 0, 1, Q("1 mm")))
sketch10.addConstraint(Sketcher.Constraint("DistanceY", 1, 2, 1, 1, Q("4 mm")))
sketch10.addConstraint(Sketcher.Constraint("DistanceX", -1, 1, 0, 2, Q("9 mm")))
sketch10.addConstraint(Sketcher.Constraint("DistanceY", 0, 2, -1, 1, Q("10 mm")))
sketch10.addConstraint(Sketcher.Constraint("DistanceY", 4, 2, -1, 1, Q("61 mm")))
sketch10.addConstraint(Sketcher.Constraint("DistanceY", 8, 2, -1, 1, Q("35.5 mm")))
pad7 = body.newObject("PartDesign::Pad", "Pad006")
pad7.Profile = sketch10
pad7.Length = 0.3

# Sketch on XY plane
sketch11 = body.newObject("Sketcher::SketchObject", "Sketch010")
sketch11.AttachmentSupport = (doc.getObject("XY_Plane"), [""])
sketch11.MapMode = "FlatFace"
sketch11.AttachmentOffset = App.Placement(App.Vector(0, 0, -10), App.Rotation())
add_polygon(sketch11, [(1, 10), (1.3, 9.5), (1.3, 10)])  # lines 0-2
sketch11.addConstraint(Sketcher.Constraint("Vertical", 1))
sketch11.addConstraint(Sketcher.Constraint("Horizontal", 2))
sketch11.addConstraint(Sketcher.Constraint("DistanceX", 2, 2, 2, 1, Q("0.3 mm")))
sketch11.addConstraint(Sketcher.Constraint("DistanceY", 1, 1, 1, 2, Q("0.5 mm")))
sketch11.addConstraint(Sketcher.Constraint("DistanceY", -1, 1, 1, 2, Q("10 mm")))
sketch11.addConstraint(Sketcher.Constraint("DistanceX", -1, 1, 2, 2, Q("1 mm")))
pocket4 = body.newObject("PartDesign::Pocket", "Pocket003")
pocket4.Profile = sketch11
pocket4.Length = 55

# Sketch on XY plane
sketch12 = body.newObject("Sketcher::SketchObject", "Sketch011")
sketch12.AttachmentSupport = (doc.getObject("XY_Plane"), [""])
sketch12.MapMode = "FlatFace"
sketch12.AttachmentOffset = App.Placement(App.Vector(0, 0, -65), App.Rotation())
add_polygon(sketch12, [(73.7, 10), (74, 10), (73.7, 9.5)])  # lines 0-2
sketch12.addConstraint(Sketcher.Constraint("Horizontal", 0))
sketch12.addConstraint(Sketcher.Constraint("Vertical", 2))
sketch12.addConstraint(Sketcher.Constraint("DistanceX", 0, 1, 0, 2, Q("0.3 mm")))
sketch12.addConstraint(Sketcher.Constraint("DistanceY", 2, 1, 2, 2, Q("0.5 mm")))
sketch12.addConstraint(Sketcher.Constraint("DistanceX", -1, 1, 0, 2, Q("74 mm")))
sketch12.addConstraint(Sketcher.Constraint("DistanceY", -1, 1, 0, 2, Q("10 mm")))
pocket5 = body.newObject("PartDesign::Pocket", "Pocket004")
pocket5.Profile = sketch12
pocket5.Length = 55
pocket5.Reversed = True
body2 = doc.addObject("PartDesign::Body", "Body001")
doc.recompute()

mirroring = doc.addObject("Part::Mirroring", "Mirroring")
mirroring.Source = body
mirroring.Base = App.Vector(0, -10, 0)
mirroring.Normal = App.Vector(0, 1, 0)
body2.BaseFeature = mirroring
doc.recompute()
body.Visibility = False
mirroring.Visibility = False

doc.recompute()
